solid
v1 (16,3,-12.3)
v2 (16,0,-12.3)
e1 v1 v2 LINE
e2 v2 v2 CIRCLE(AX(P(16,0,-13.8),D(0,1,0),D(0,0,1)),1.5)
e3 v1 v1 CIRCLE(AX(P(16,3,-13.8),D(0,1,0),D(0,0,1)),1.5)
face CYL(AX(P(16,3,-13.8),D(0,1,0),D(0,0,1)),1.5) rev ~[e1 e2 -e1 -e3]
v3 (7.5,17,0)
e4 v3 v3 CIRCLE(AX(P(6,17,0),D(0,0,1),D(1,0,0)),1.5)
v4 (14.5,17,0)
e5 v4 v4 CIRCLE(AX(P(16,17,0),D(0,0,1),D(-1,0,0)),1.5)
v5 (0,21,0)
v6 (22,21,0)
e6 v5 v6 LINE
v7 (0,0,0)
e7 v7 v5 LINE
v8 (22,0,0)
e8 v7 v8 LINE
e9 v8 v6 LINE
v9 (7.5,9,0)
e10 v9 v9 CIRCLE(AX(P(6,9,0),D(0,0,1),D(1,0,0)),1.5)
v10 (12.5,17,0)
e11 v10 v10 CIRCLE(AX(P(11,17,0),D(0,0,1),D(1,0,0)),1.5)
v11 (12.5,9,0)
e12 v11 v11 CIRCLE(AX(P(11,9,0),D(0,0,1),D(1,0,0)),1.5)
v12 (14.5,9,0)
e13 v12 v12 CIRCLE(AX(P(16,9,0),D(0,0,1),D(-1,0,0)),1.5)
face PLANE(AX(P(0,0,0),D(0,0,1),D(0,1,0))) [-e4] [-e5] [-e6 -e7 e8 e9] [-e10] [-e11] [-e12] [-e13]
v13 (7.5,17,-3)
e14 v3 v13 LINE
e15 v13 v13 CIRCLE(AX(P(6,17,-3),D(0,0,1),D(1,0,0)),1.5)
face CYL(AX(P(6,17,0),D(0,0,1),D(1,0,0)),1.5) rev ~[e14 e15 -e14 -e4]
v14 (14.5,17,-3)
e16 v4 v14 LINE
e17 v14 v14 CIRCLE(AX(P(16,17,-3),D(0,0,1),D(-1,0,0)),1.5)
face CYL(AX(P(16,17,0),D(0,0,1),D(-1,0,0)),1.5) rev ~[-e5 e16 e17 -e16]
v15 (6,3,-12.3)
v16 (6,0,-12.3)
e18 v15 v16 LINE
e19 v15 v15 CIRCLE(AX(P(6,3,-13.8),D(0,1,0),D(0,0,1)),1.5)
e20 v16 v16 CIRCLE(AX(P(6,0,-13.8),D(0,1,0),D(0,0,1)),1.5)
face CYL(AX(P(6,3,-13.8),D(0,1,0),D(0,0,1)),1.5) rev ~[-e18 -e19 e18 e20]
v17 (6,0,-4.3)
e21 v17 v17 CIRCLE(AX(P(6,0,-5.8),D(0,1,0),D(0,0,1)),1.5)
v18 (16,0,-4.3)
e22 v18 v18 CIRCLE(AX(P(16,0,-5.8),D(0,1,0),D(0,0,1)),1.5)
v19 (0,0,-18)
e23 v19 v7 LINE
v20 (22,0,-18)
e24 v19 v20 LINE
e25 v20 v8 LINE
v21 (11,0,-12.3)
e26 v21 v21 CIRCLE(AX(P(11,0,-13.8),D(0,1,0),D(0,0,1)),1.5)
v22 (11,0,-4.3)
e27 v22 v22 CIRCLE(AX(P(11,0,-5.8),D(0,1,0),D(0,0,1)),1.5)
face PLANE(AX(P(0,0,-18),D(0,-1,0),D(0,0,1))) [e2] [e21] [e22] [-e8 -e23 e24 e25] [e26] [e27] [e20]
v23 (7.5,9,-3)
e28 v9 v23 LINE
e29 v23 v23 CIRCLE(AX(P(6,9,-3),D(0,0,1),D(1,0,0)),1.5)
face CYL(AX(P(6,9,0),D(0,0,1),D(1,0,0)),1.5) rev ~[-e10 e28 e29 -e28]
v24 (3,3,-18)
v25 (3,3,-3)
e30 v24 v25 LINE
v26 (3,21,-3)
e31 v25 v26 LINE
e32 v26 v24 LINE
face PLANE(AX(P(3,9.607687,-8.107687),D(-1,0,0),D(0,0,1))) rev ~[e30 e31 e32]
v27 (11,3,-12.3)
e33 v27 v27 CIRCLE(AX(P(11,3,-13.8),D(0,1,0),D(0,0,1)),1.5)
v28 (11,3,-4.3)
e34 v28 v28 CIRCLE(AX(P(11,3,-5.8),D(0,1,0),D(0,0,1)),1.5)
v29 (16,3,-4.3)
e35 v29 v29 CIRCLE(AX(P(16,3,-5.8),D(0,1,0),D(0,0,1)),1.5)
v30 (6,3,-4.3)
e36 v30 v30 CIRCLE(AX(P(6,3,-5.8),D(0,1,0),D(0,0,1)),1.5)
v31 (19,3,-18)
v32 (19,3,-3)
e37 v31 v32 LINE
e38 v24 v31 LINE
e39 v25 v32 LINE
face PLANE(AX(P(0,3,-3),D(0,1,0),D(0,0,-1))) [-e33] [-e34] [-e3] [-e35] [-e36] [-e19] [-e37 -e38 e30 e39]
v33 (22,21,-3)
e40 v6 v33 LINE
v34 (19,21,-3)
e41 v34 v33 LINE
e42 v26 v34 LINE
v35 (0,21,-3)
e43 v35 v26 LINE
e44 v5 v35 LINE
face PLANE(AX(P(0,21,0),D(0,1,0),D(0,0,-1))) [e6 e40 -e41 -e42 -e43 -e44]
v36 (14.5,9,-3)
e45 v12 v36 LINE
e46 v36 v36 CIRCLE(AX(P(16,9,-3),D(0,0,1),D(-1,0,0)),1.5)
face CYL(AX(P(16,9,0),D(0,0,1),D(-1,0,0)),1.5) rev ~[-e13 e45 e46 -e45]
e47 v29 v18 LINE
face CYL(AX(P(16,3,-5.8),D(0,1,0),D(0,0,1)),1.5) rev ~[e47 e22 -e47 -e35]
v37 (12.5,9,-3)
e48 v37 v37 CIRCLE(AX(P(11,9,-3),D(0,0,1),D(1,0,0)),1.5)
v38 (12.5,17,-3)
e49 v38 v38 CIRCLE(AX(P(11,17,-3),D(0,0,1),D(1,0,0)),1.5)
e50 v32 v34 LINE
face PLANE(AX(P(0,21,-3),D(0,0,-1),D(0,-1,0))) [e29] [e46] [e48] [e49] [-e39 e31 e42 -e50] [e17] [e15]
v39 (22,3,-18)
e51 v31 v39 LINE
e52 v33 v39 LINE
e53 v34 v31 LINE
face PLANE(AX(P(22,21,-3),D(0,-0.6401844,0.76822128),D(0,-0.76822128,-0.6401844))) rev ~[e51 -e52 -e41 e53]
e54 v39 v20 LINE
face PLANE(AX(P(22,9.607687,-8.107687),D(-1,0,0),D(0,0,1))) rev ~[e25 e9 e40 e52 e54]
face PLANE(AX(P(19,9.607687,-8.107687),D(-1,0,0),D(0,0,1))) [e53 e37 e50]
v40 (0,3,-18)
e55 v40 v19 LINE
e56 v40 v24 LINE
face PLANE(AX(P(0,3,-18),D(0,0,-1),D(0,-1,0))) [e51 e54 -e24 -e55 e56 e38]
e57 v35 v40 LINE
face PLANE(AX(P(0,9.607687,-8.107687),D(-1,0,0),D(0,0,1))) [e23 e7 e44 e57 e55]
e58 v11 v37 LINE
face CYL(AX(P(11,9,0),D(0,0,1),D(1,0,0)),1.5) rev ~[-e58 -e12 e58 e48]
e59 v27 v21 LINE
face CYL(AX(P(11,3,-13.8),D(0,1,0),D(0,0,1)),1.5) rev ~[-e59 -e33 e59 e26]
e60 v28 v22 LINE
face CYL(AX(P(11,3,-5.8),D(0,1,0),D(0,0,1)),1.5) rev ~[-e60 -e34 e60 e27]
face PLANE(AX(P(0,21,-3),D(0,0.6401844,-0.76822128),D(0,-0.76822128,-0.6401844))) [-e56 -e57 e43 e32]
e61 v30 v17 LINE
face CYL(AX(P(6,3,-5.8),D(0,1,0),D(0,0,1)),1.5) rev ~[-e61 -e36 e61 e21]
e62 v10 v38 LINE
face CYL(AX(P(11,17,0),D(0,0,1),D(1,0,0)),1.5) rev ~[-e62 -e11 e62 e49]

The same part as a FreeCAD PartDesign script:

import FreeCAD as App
import Part
import Sketcher

V = App.Vector
Q = App.Units.Quantity

doc = App.newDocument("Part")
params = doc.addObject("Spreadsheet::Sheet", "Params")
for row, (alias, value) in enumerate([
    ("sketch1_width", "21 mm"),
    ("sketch1_width2", "3 mm"),
    ("pad1_length", "22 mm"),
    ("sketch2_diameter", "3 mm"),
    ("pocket1_length", "13 mm"),
    ("sketch3_width", "18 mm"),
    ("sketch3_height", "15 mm"),
    ("pad2_length", "3 mm"),
    ("sketch4_width", "18 mm"),
    ("sketch4_height", "15 mm"),
    ("pad3_length", "3 mm"),
    ("sketch5_diameter", "3 mm"),
    ("pocket2_length", "3 mm"),
], start=1):
    params.set(f"A{row}", alias)
    params.set(f"B{row}", "=" + value)
    params.setAlias(f"B{row}", alias)

body = doc.addObject("PartDesign::Body", "Body")

sketch1 = doc.addObject("Sketcher::SketchObject", "Sketch")
body.addObject(sketch1)
sketch1.AttachmentSupport = (doc.YZ_Plane, [""])
sketch1.MapMode = "FlatFace"
sketch1.addGeometry(Part.LineSegment(V(21, 0, 0), V(0, 0, 0)), False)
sketch1.addGeometry(Part.LineSegment(V(0, 0, 0), V(0, -18, 0)), False)
sketch1.addGeometry(Part.LineSegment(V(0, -18, 0), V(3, -18, 0)), False)
sketch1.addGeometry(Part.LineSegment(V(3, -18, 0), V(3, -3, 0)), False)
sketch1.addGeometry(Part.LineSegment(V(3, -3, 0), V(21, -3, 0)), False)
sketch1.addGeometry(Part.LineSegment(V(21, -3, 0), V(21, 0, 0)), False)
sketch1.addConstraint(Sketcher.Constraint("Coincident", 0, 2, 1, 1))
sketch1.addConstraint(Sketcher.Constraint("Coincident", 1, 2, 2, 1))
sketch1.addConstraint(Sketcher.Constraint("Coincident", 2, 2, 3, 1))
sketch1.addConstraint(Sketcher.Constraint("Coincident", 3, 2, 4, 1))
sketch1.addConstraint(Sketcher.Constraint("Coincident", 4, 2, 5, 1))
sketch1.addConstraint(Sketcher.Constraint("Coincident", 5, 2, 0, 1))
sketch1.addConstraint(Sketcher.Constraint("Horizontal", 0))
sketch1.addConstraint(Sketcher.Constraint("Vertical", 1))
sketch1.addConstraint(Sketcher.Constraint("Horizontal", 2))
sketch1.addConstraint(Sketcher.Constraint("Vertical", 3))
sketch1.addConstraint(Sketcher.Constraint("Horizontal", 4))
sketch1.addConstraint(Sketcher.Constraint("Vertical", 5))
sketch1.addConstraint(Sketcher.Constraint("Coincident", 0, 2, -1, 1))
sketch1.addConstraint(Sketcher.Constraint("Equal", 4, 1))
sketch1.addConstraint(Sketcher.Constraint("Equal", 2, 5))
sketch1.addConstraint(Sketcher.Constraint("DistanceX", 0, 2, 0, 1, Q("21 mm")))
sketch1.addConstraint(Sketcher.Constraint("DistanceX", 2, 1, 2, 2, Q("3 mm")))
sketch1.setExpression("Constraints[15]", "Params.sketch1_width")
sketch1.setExpression("Constraints[16]", "Params.sketch1_width2")
pad1 = doc.addObject("PartDesign::Pad", "Pad")
body.addObject(pad1)
pad1.Profile = sketch1
pad1.setExpression("Length", "Params.pad1_length")

sketch2 = doc.addObject("Sketcher::SketchObject", "Sketch001")
body.addObject(sketch2)
sketch2.AttachmentSupport = (doc.XZ_Plane, [""])
sketch2.MapMode = "FlatFace"
sketch2.AttachmentOffset = App.Placement(V(0, 0, -3), App.Rotation())
sketch2.addGeometry(Part.Circle(V(11, -5.8, 0), V(0, 0, 1), 1.5), False)
sketch2.addGeometry(Part.Circle(V(11, -13.8, 0), V(0, 0, 1), 1.5), False)
sketch2.addGeometry(Part.Circle(V(16, -5.8, 0), V(0, 0, 1), 1.5), False)
sketch2.addGeometry(Part.Circle(V(16, -13.8, 0), V(0, 0, 1), 1.5), False)
sketch2.addGeometry(Part.Circle(V(6, -13.8, 0), V(0, 0, 1), 1.5), False)
sketch2.addGeometry(Part.Circle(V(6, -5.8, 0), V(0, 0, 1), 1.5), False)
sketch2.addConstraint(Sketcher.Constraint("Equal", 0, 1))
sketch2.addConstraint(Sketcher.Constraint("Equal", 1, 2))
sketch2.addConstraint(Sketcher.Constraint("Equal", 2, 3))
sketch2.addConstraint(Sketcher.Constraint("Equal", 3, 4))
sketch2.addConstraint(Sketcher.Constraint("Equal", 4, 5))
sketch2.addConstraint(Sketcher.Constraint("Horizontal", 0, 3, 2, 3))
sketch2.addConstraint(Sketcher.Constraint("Horizontal", 1, 3, 3, 3))
sketch2.addConstraint(Sketcher.Constraint("Horizontal", 3, 3, 4, 3))
sketch2.addConstraint(Sketcher.Constraint("Horizontal", 2, 3, 5, 3))
sketch2.addConstraint(Sketcher.Constraint("Vertical", 0, 3, 1, 3))
sketch2.addConstraint(Sketcher.Constraint("Vertical", 2, 3, 3, 3))
sketch2.addConstraint(Sketcher.Constraint("Vertical", 4, 3, 5, 3))
sketch2.addConstraint(Sketcher.Constraint("Diameter", 0, Q("3 mm")))
sketch2.addConstraint(Sketcher.Constraint("DistanceX", -1, 1, 0, 3, Q("11 mm")))
sketch2.addConstraint(Sketcher.Constraint("DistanceX", -1, 1, 2, 3, Q("16 mm")))
sketch2.addConstraint(Sketcher.Constraint("DistanceX", -1, 1, 4, 3, Q("6 mm")))
sketch2.addConstraint(Sketcher.Constraint("DistanceY", 1, 3, 0, 3, Q("8 mm")))
sketch2.addConstraint(Sketcher.Constraint("DistanceY", 0, 3, -1, 1, Q("5.8 mm")))
sketch2.setExpression("Constraints[12]", "Params.sketch2_diameter")
pocket1 = doc.addObject("PartDesign::Pocket", "Pocket")
body.addObject(pocket1)
pocket1.Profile = sketch2
pocket1.setExpression("Length", "Params.pocket1_length")
pocket1.Reversed = True

sketch3 = doc.addObject("Sketcher::SketchObject", "Sketch002")
body.addObject(sketch3)
sketch3.AttachmentSupport = (doc.YZ_Plane, [""])
sketch3.MapMode = "FlatFace"
sketch3.AttachmentOffset = App.Placement(V(0, 0, 22), App.Rotation())
sketch3.addGeometry(Part.LineSegment(V(3, -18, 0), V(21, -3, 0)), False)
sketch3.addGeometry(Part.LineSegment(V(21, -3, 0), V(3, -3, 0)), False)
sketch3.addGeometry(Part.LineSegment(V(3, -3, 0), V(3, -18, 0)), False)
sketch3.addConstraint(Sketcher.Constraint("Coincident", 0, 2, 1, 1))
sketch3.addConstraint(Sketcher.Constraint("Coincident", 1, 2, 2, 1))
sketch3.addConstraint(Sketcher.Constraint("Coincident", 2, 2, 0, 1))
sketch3.addConstraint(Sketcher.Constraint("Horizontal", 1))
sketch3.addConstraint(Sketcher.Constraint("Vertical", 2))
sketch3.addConstraint(Sketcher.Constraint("DistanceX", 1, 2, 1, 1, Q("18 mm")))
sketch3.addConstraint(Sketcher.Constraint("DistanceY", 2, 2, 2, 1, Q("15 mm")))
sketch3.addConstraint(Sketcher.Constraint("DistanceX", -1, 1, 0, 2, Q("21 mm")))
sketch3.addConstraint(Sketcher.Constraint("DistanceY", 0, 2, -1, 1, Q("3 mm")))
sketch3.setExpression("Constraints[5]", "Params.sketch3_width")
sketch3.setExpression("Constraints[6]", "Params.sketch3_height")
pad2 = doc.addObject("PartDesign::Pad", "Pad001")
body.addObject(pad2)
pad2.Profile = sketch3
pad2.setExpression("Length", "Params.pad2_length")
pad2.Reversed = True

sketch4 = doc.addObject("Sketcher::SketchObject", "Sketch003")
body.addObject(sketch4)
sketch4.AttachmentSupport = (doc.YZ_Plane, [""])
sketch4.MapMode = "FlatFace"
sketch4.addGeometry(Part.LineSegment(V(3, -18, 0), V(3, -3, 0)), False)
sketch4.addGeometry(Part.LineSegment(V(3, -3, 0), V(21, -3, 0)), False)
sketch4.addGeometry(Part.LineSegment(V(21, -3, 0), V(3, -18, 0)), False)
sketch4.addConstraint(Sketcher.Constraint("Coincident", 0, 2, 1, 1))
sketch4.addConstraint(Sketcher.Constraint("Coincident", 1, 2, 2, 1))
sketch4.addConstraint(Sketcher.Constraint("Coincident", 2, 2, 0, 1))
sketch4.addConstraint(Sketcher.Constraint("Vertical", 0))
sketch4.addConstraint(Sketcher.Constraint("Horizontal", 1))
sketch4.addConstraint(Sketcher.Constraint("DistanceX", 1, 1, 1, 2, Q("18 mm")))
sketch4.addConstraint(Sketcher.Constraint("DistanceY", 0, 1, 0, 2, Q("15 mm")))
sketch4.addConstraint(Sketcher.Constraint("DistanceX", -1, 1, 0, 2, Q("3 mm")))
sketch4.addConstraint(Sketcher.Constraint("DistanceY", 0, 2, -1, 1, Q("3 mm")))
sketch4.setExpression("Constraints[5]", "Params.sketch4_width")
sketch4.setExpression("Constraints[6]", "Params.sketch4_height")
pad3 = doc.addObject("PartDesign::Pad", "Pad002")
body.addObject(pad3)
pad3.Profile = sketch4
pad3.setExpression("Length", "Params.pad3_length")

sketch5 = doc.addObject("Sketcher::SketchObject", "Sketch004")
body.addObject(sketch5)
sketch5.AttachmentSupport = (doc.XY_Plane, [""])
sketch5.MapMode = "FlatFace"
sketch5.addGeometry(Part.Circle(V(11, 17, 0), V(0, 0, 1), 1.5), False)
sketch5.addGeometry(Part.Circle(V(11, 9, 0), V(0, 0, 1), 1.5), False)
sketch5.addGeometry(Part.Circle(V(6, 17, 0), V(0, 0, 1), 1.5), False)
sketch5.addGeometry(Part.Circle(V(6, 9, 0), V(0, 0, 1), 1.5), False)
sketch5.addGeometry(Part.Circle(V(16, 9, 0), V(0, 0, 1), 1.5), False)
sketch5.addGeometry(Part.Circle(V(16, 17, 0), V(0, 0, 1), 1.5), False)
sketch5.addConstraint(Sketcher.Constraint("Equal", 0, 1))
sketch5.addConstraint(Sketcher.Constraint("Equal", 1, 2))
sketch5.addConstraint(Sketcher.Constraint("Equal", 2, 3))
sketch5.addConstraint(Sketcher.Constraint("Equal", 3, 4))
sketch5.addConstraint(Sketcher.Constraint("Equal", 4, 5))
sketch5.addConstraint(Sketcher.Constraint("Horizontal", 0, 3, 2, 3))
sketch5.addConstraint(Sketcher.Constraint("Horizontal", 1, 3, 3, 3))
sketch5.addConstraint(Sketcher.Constraint("Horizontal", 3, 3, 4, 3))
sketch5.addConstraint(Sketcher.Constraint("Horizontal", 2, 3, 5, 3))
sketch5.addConstraint(Sketcher.Constraint("Vertical", 0, 3, 1, 3))
sketch5.addConstraint(Sketcher.Constraint("Vertical", 2, 3, 3, 3))
sketch5.addConstraint(Sketcher.Constraint("Vertical", 4, 3, 5, 3))
sketch5.addConstraint(Sketcher.Constraint("Diameter", 0, Q("3 mm")))
sketch5.addConstraint(Sketcher.Constraint("DistanceX", -1, 1, 0, 3, Q("11 mm")))
sketch5.addConstraint(Sketcher.Constraint("DistanceY", -1, 1, 0, 3, Q("17 mm")))
sketch5.addConstraint(Sketcher.Constraint("DistanceY", -1, 1, 1, 3, Q("9 mm")))
sketch5.addConstraint(Sketcher.Constraint("DistanceX", -1, 1, 2, 3, Q("6 mm")))
sketch5.addConstraint(Sketcher.Constraint("DistanceX", -1, 1, 4, 3, Q("16 mm")))
sketch5.setExpression("Constraints[12]", "Params.sketch5_diameter")
pocket2 = doc.addObject("PartDesign::Pocket", "Pocket001")
body.addObject(pocket2)
pocket2.Profile = sketch5
pocket2.setExpression("Length", "Params.pocket2_length")

doc.recompute()
